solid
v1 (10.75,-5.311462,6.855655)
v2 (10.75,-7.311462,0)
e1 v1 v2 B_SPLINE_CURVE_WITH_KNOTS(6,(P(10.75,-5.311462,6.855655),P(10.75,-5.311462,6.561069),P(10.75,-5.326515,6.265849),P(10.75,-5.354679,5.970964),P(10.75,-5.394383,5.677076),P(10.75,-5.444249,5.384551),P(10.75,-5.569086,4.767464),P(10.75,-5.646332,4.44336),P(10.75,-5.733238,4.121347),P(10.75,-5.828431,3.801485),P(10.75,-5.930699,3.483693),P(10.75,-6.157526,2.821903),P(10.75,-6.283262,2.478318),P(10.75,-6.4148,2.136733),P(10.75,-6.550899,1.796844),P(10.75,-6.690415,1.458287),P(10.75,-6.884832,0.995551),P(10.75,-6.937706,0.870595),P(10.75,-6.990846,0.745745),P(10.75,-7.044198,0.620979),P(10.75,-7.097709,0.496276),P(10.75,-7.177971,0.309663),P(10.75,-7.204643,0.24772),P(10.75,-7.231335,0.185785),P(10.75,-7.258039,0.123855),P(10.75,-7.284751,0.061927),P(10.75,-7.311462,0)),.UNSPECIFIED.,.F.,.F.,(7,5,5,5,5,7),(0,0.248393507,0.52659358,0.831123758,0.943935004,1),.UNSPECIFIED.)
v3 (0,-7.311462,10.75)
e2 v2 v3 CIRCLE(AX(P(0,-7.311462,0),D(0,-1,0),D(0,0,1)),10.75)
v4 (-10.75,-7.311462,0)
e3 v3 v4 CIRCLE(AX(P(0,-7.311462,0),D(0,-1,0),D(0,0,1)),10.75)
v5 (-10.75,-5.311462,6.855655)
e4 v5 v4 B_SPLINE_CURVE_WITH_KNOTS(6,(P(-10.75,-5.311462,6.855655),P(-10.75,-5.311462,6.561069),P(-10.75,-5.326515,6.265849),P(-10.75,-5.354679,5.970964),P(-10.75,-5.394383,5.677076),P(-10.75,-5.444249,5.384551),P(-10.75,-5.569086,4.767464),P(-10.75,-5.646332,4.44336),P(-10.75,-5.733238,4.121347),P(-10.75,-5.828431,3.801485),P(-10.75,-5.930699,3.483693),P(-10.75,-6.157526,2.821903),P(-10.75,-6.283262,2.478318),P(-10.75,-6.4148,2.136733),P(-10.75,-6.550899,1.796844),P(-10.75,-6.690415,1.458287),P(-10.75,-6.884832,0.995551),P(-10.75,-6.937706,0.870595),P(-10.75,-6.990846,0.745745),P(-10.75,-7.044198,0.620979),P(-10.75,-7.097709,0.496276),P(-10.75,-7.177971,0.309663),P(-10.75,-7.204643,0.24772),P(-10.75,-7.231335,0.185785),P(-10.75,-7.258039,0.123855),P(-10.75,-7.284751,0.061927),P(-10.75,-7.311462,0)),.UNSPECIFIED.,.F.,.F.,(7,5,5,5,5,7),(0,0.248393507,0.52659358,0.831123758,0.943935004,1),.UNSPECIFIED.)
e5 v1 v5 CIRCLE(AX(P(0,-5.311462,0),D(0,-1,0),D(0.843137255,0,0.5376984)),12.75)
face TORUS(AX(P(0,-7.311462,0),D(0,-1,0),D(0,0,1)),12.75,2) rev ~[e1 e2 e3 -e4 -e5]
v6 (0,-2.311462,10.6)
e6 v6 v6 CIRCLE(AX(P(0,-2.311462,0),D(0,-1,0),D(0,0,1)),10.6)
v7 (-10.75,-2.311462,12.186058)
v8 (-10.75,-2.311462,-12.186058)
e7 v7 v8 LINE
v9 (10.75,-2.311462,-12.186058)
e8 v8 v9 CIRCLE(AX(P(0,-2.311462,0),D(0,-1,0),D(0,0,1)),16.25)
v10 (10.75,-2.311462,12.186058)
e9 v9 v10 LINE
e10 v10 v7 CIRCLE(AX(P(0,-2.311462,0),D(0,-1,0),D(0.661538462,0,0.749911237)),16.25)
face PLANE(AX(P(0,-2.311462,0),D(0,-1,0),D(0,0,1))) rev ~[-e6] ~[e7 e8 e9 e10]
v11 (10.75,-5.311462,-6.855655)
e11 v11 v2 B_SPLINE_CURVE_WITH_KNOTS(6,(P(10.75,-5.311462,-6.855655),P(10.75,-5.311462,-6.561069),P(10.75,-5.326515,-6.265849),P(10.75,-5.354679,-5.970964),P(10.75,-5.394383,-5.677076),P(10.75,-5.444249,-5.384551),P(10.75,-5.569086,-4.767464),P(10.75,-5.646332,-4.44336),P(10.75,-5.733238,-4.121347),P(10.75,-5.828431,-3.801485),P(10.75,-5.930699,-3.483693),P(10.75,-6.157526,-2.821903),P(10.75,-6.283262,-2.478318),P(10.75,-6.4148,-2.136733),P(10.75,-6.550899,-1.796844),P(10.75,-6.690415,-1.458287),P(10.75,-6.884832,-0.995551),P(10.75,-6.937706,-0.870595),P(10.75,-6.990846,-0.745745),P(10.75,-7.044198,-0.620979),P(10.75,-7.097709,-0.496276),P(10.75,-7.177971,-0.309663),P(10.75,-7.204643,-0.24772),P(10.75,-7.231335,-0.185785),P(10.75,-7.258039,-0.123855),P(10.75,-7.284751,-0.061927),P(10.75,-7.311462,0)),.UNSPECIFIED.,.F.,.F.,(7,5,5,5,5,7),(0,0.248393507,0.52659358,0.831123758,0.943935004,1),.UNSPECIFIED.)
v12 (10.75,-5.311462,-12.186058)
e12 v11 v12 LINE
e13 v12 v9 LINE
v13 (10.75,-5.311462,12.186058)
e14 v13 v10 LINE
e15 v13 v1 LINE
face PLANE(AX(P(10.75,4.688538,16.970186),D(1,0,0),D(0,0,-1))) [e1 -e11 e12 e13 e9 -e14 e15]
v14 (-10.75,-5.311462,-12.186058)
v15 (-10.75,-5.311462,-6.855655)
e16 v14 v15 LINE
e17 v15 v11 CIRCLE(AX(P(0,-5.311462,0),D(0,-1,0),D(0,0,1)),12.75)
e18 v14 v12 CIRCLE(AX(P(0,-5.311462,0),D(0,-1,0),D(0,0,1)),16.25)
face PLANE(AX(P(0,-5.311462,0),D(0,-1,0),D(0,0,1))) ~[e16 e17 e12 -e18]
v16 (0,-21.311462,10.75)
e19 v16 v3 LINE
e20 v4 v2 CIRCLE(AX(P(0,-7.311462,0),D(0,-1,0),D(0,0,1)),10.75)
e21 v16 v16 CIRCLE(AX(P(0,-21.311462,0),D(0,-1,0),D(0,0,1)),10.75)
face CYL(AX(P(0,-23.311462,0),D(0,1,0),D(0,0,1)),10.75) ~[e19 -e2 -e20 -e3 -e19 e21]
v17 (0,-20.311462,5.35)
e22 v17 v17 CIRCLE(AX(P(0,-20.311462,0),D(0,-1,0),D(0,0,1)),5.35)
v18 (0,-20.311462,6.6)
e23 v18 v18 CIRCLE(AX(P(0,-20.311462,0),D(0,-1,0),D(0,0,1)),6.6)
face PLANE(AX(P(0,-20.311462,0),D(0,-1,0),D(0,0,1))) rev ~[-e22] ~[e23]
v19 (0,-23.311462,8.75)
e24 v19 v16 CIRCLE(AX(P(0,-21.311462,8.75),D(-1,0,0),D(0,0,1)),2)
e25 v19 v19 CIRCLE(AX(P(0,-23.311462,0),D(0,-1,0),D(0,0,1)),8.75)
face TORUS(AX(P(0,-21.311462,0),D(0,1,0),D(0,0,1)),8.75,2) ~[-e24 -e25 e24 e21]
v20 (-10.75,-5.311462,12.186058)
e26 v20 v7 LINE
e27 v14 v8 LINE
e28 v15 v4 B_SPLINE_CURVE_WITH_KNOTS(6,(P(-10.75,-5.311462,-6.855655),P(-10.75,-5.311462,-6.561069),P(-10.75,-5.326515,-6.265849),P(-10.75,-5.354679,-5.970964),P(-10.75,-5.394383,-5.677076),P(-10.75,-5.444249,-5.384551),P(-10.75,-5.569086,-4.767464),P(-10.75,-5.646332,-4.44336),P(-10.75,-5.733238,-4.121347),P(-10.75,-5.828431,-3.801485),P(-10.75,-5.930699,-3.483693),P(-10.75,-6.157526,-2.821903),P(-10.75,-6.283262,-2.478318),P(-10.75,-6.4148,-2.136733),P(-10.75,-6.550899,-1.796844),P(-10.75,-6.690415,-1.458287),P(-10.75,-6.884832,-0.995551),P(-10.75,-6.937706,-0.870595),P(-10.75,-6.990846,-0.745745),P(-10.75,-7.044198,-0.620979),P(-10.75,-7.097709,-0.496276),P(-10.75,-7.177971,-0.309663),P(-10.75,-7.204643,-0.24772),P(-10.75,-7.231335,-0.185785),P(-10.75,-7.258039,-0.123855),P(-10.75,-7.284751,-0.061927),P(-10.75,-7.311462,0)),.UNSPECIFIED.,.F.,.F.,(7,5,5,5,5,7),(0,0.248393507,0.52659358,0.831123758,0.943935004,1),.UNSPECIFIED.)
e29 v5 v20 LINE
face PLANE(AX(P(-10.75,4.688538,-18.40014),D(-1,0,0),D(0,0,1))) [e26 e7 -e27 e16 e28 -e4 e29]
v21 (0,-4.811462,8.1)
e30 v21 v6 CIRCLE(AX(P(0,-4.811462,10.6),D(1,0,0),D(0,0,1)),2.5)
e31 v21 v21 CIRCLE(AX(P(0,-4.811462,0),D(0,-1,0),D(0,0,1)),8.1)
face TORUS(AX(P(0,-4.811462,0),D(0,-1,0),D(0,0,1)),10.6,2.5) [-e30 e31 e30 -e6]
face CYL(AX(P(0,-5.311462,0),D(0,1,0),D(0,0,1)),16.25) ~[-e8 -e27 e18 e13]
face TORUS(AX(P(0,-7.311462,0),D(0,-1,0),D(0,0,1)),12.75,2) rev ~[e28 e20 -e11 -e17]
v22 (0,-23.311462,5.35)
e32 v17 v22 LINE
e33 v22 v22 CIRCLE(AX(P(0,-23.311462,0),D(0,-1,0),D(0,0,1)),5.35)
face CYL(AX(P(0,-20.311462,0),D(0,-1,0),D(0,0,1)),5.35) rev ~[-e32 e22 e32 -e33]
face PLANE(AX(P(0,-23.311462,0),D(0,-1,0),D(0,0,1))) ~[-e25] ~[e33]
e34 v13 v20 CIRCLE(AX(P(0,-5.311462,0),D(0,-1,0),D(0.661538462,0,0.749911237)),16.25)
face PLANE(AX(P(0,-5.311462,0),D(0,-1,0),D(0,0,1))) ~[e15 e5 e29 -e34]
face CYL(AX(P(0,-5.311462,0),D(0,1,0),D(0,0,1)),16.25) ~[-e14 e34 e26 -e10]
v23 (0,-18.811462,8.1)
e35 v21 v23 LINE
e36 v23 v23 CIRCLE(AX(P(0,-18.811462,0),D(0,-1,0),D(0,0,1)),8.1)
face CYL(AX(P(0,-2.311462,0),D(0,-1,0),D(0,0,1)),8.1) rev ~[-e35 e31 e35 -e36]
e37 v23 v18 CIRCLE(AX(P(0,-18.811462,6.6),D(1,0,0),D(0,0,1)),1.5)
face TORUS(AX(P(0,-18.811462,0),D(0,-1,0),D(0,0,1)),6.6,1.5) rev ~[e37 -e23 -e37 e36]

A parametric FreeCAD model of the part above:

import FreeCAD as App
import Part
import Sketcher
Q = App.Units.Quantity


def edges_at(feature, points):
    """Names of the edges that pass closest to the given points."""
    edges = feature.Shape.Edges
    near = lambda p: min(range(len(edges)), key=lambda i: edges[i].distToShape(Part.Vertex(*p))[0])
    return sorted({f"Edge{near(p) + 1}" for p in points})


def add_polygon(sketch, points):
    """Adds a closed chain of lines whose ends are joined by coincident constraints."""
    first, n = sketch.GeometryCount, len(points)
    for a, b in zip(points, points[1:] + points[:1]):
        sketch.addGeometry(Part.LineSegment(App.Vector(*a, 0), App.Vector(*b, 0)), False)
    for i in range(n):
        sketch.addConstraint(Sketcher.Constraint("Coincident", first + i, 2, first + (i + 1) % n, 1))

doc = App.newDocument("Part")
body = doc.addObject("PartDesign::Body", "Body")

# Sketch on XY plane
sketch1 = body.newObject("Sketcher::SketchObject", "Sketch")
sketch1.AttachmentSupport = (doc.getObject("XY_Plane"), [""])
sketch1.MapMode = "FlatFace"
add_polygon(sketch1, [(8.1, -2.3), (8.1, -20.3), (5.3, -20.3), (5.3, -23.3), (10.8, -23.3), (10.8, -5.3), (16.2, -5.3), (16.2, -2.3)])  # lines 0-7
sketch1.addConstraint(Sketcher.Constraint("Vertical", 0))
sketch1.addConstraint(Sketcher.Constraint("Horizontal", 1))
sketch1.addConstraint(Sketcher.Constraint("Vertical", 2))
sketch1.addConstraint(Sketcher.Constraint("Horizontal", 3))
sketch1.addConstraint(Sketcher.Constraint("Vertical", 4))
sketch1.addConstraint(Sketcher.Constraint("Horizontal", 5))
sketch1.addConstraint(Sketcher.Constraint("Vertical", 6))
sketch1.addConstraint(Sketcher.Constraint("Horizontal", 7))
sketch1.addConstraint(Sketcher.Constraint("Equal", 0, 4))
sketch1.addConstraint(Sketcher.Constraint("DistanceY", 0, 2, 0, 1, Q("18 mm")))
sketch1.addConstraint(Sketcher.Constraint("DistanceY", 2, 2, 2, 1, Q("3 mm")))
sketch1.addConstraint(Sketcher.Constraint("DistanceX", 3, 1, 3, 2, Q("5.4 mm")))
sketch1.addConstraint(Sketcher.Constraint("DistanceX", 5, 1, 5, 2, Q("5.5 mm")))
sketch1.addConstraint(Sketcher.Constraint("DistanceX", 1, 2, 1, 1, Q("2.75 mm")))
sketch1.addConstraint(Sketcher.Constraint("DistanceX", -1, 1, 0, 2, Q("8.1 mm")))
sketch1.addConstraint(Sketcher.Constraint("DistanceY", 0, 2, -1, 1, Q("20.311462 mm")))
revolution = body.newObject("PartDesign::Revolution", "Revolution")
revolution.Profile = sketch1
revolution.ReferenceAxis = (sketch1, ["V_Axis"])
revolution.Angle = 360
doc.recompute()

fillet = body.newObject("PartDesign::Fillet", "Fillet")
fillet.Base = (revolution, edges_at(revolution, [(0, -2.311, -8.1)]))
fillet.Radius = 2.5
doc.recompute()

fillet2 = body.newObject("PartDesign::Fillet", "Fillet001")
fillet2.Base = (fillet, edges_at(fillet, [(0, -20.311, -8.1)]))
fillet2.Radius = 1.5
doc.recompute()

fillet3 = body.newObject("PartDesign::Fillet", "Fillet002")
fillet3.Base = (fillet2, edges_at(fillet2, [(0, -23.311, -10.75)]))
fillet3.Radius = 2
doc.recompute()

fillet4 = body.newObject("PartDesign::Fillet", "Fillet003")
fillet4.Base = (fillet3, edges_at(fillet3, [(0, -5.311, -10.75)]))
fillet4.Radius = 2

# Sketch on XZ plane
sketch2 = body.newObject("Sketcher::SketchObject", "Sketch001")
sketch2.AttachmentSupport = (doc.getObject("XZ_Plane"), [""])
sketch2.MapMode = "FlatFace"
sketch2.AttachmentOffset = App.Placement(App.Vector(0, 0, 5.311462), App.Rotation())
add_polygon(sketch2, [(-22, 22), (-22, -22), (22, -22), (22, 22)])  # lines 0-3
add_polygon(sketch2, [(-11, -18), (-11, 17), (11, 17), (11, -18)])  # lines 4-7
sketch2.addConstraint(Sketcher.Constraint("Vertical", 0))
sketch2.addConstraint(Sketcher.Constraint("Horizontal", 1))
sketch2.addConstraint(Sketcher.Constraint("Vertical", 2))
sketch2.addConstraint(Sketcher.Constraint("Horizontal", 3))
sketch2.addConstraint(Sketcher.Constraint("Vertical", 4))
sketch2.addConstraint(Sketcher.Constraint("Horizontal", 5))
sketch2.addConstraint(Sketcher.Constraint("Vertical", 6))
sketch2.addConstraint(Sketcher.Constraint("Horizontal", 7))
sketch2.addConstraint(Sketcher.Constraint("Symmetric", 0, 2, 2, 2, -1, 1))
sketch2.addConstraint(Sketcher.Constraint("Equal", 3, 0))
sketch2.addConstraint(Sketcher.Constraint("DistanceX", 5, 1, 5, 2, Q("21.5 mm")))
sketch2.addConstraint(Sketcher.Constraint("DistanceX", 1, 1, 1, 2, Q("44.606 mm")))
sketch2.addConstraint(Sketcher.Constraint("DistanceX", 4, 2, -1, 1, Q("10.75 mm")))
sketch2.addConstraint(Sketcher.Constraint("DistanceY", 4, 1, 4, 2, Q("35.370326 mm")))
sketch2.addConstraint(Sketcher.Constraint("DistanceY", 6, 2, -1, 1, Q("18.40014 mm")))
pocket1 = body.newObject("PartDesign::Pocket", "Pocket")
pocket1.Profile = sketch2
pocket1.Type = "ThroughAll"
pocket1.Midplane = True

doc.recompute()
